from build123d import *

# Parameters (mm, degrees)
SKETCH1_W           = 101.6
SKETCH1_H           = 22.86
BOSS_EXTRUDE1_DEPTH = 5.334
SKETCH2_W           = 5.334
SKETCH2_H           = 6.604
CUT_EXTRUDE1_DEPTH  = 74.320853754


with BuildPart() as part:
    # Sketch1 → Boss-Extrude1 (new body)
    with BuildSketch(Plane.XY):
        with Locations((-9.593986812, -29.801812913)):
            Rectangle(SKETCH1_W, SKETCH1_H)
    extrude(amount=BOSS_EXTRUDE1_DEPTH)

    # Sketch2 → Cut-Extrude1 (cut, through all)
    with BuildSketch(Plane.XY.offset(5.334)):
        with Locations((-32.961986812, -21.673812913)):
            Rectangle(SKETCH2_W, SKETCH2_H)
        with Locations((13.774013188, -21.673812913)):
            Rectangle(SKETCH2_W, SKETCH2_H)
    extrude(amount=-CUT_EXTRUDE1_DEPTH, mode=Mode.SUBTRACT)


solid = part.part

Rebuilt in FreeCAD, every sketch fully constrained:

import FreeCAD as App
import Part
import Sketcher
from FreeCAD import Vector
Q = App.Units.Quantity

doc = App.newDocument("Part")
params = doc.addObject("Spreadsheet::Sheet", "Params")
for row, (alias, value) in enumerate([
    ("sketch1_width", "4 in"),
    ("sketch1_height", "0.9 in"),
    ("pad1_length", "0.21 in"),
    ("sketch2_width", "0.21 in"),
    ("sketch2_height", "0.26 in"),
], start=1):
    params.set(f"A{row}", alias)
    params.set(f"B{row}", "=" + value)
    params.setAlias(f"B{row}", alias)

body = doc.addObject("PartDesign::Body", "Body")

sketch1 = body.newObject("Sketcher::SketchObject", "Sketch")
sketch1.AttachmentSupport = (doc.getObject("XY_Plane"), [""])
sketch1.MapMode = "FlatFace"
sketch1.addGeometry(Part.LineSegment(Vector(-60.393987, -18.371813, 0), Vector(-60.393987, -41.231813, 0)), False)
sketch1.addGeometry(Part.LineSegment(Vector(-60.393987, -41.231813, 0), Vector(41.206013, -41.231813, 0)), False)
sketch1.addGeometry(Part.LineSegment(Vector(41.206013, -41.231813, 0), Vector(41.206013, -18.371813, 0)), False)
sketch1.addGeometry(Part.LineSegment(Vector(41.206013, -18.371813, 0), Vector(-60.393987, -18.371813, 0)), False)
sketch1.addConstraint(Sketcher.Constraint("Coincident", 0, 2, 1, 1))
sketch1.addConstraint(Sketcher.Constraint("Coincident", 1, 2, 2, 1))
sketch1.addConstraint(Sketcher.Constraint("Coincident", 2, 2, 3, 1))
sketch1.addConstraint(Sketcher.Constraint("Coincident", 3, 2, 0, 1))
sketch1.addConstraint(Sketcher.Constraint("Vertical", 0))
sketch1.addConstraint(Sketcher.Constraint("Horizontal", 1))
sketch1.addConstraint(Sketcher.Constraint("Vertical", 2))
sketch1.addConstraint(Sketcher.Constraint("Horizontal", 3))
sketch1.addConstraint(Sketcher.Constraint("DistanceX", 1, 1, 1, 2, Q("4 in")))
sketch1.addConstraint(Sketcher.Constraint("DistanceY", 0, 2, 0, 1, Q("0.9 in")))
sketch1.addConstraint(Sketcher.Constraint("DistanceX", 0, 2, -1, 1, 60.393987))
sketch1.addConstraint(Sketcher.Constraint("DistanceY", 0, 2, -1, 1, 41.231813))
sketch1.setExpression("Constraints[8]", "Params.sketch1_width")
sketch1.setExpression("Constraints[9]", "Params.sketch1_height")
pad1 = body.newObject("PartDesign::Pad", "Pad")
pad1.Profile = sketch1
pad1.setExpression("Length", "Params.pad1_length")

sketch2 = body.newObject("Sketcher::SketchObject", "Sketch001")
sketch2.AttachmentSupport = (doc.getObject("XY_Plane"), [""])
sketch2.MapMode = "FlatFace"
sketch2.AttachmentOffset = App.Placement(Vector(0, 0, 0.21 * 25.4), App.Rotation())
sketch2.addGeometry(Part.LineSegment(Vector(-35.628987, -18.371813, 0), Vector(-35.628987, -24.975813, 0)), False)
sketch2.addGeometry(Part.LineSegment(Vector(-35.628987, -24.975813, 0), Vector(-30.294987, -24.975813, 0)), False)
sketch2.addGeometry(Part.LineSegment(Vector(-30.294987, -24.975813, 0), Vector(-30.294987, -18.371813, 0)), False)
sketch2.addGeometry(Part.LineSegment(Vector(-30.294987, -18.371813, 0), Vector(-35.628987, -18.371813, 0)), False)
sketch2.addGeometry(Part.LineSegment(Vector(11.107013, -18.371813, 0), Vector(11.107013, -24.975813, 0)), False)
sketch2.addGeometry(Part.LineSegment(Vector(11.107013, -24.975813, 0), Vector(16.441013, -24.975813, 0)), False)
sketch2.addGeometry(Part.LineSegment(Vector(16.441013, -24.975813, 0), Vector(16.441013, -18.371813, 0)), False)
sketch2.addGeometry(Part.LineSegment(Vector(16.441013, -18.371813, 0), Vector(11.107013, -18.371813, 0)), False)
sketch2.addConstraint(Sketcher.Constraint("Coincident", 0, 2, 1, 1))
sketch2.addConstraint(Sketcher.Constraint("Coincident", 1, 2, 2, 1))
sketch2.addConstraint(Sketcher.Constraint("Coincident", 2, 2, 3, 1))
sketch2.addConstraint(Sketcher.Constraint("Coincident", 3, 2, 0, 1))
sketch2.addConstraint(Sketcher.Constraint("Coincident", 4, 2, 5, 1))
sketch2.addConstraint(Sketcher.Constraint("Coincident", 5, 2, 6, 1))
sketch2.addConstraint(Sketcher.Constraint("Coincident", 6, 2, 7, 1))
sketch2.addConstraint(Sketcher.Constraint("Coincident", 7, 2, 4, 1))
sketch2.addConstraint(Sketcher.Constraint("Vertical", 0))
sketch2.addConstraint(Sketcher.Constraint("Horizontal", 1))
sketch2.addConstraint(Sketcher.Constraint("Vertical", 2))
sketch2.addConstraint(Sketcher.Constraint("Horizontal", 3))
sketch2.addConstraint(Sketcher.Constraint("Vertical", 4))
sketch2.addConstraint(Sketcher.Constraint("Horizontal", 5))
sketch2.addConstraint(Sketcher.Constraint("Vertical", 6))
sketch2.addConstraint(Sketcher.Constraint("Horizontal", 7))
sketch2.addConstraint(Sketcher.Constraint("Horizontal", 1, 2, 4, 2))
sketch2.addConstraint(Sketcher.Constraint("Horizontal", 3, 2, 6, 2))
sketch2.addConstraint(Sketcher.Constraint("Equal", 3, 5))
sketch2.addConstraint(Sketcher.Constraint("DistanceX", 1, 1, 1, 2, Q("0.21 in")))
sketch2.addConstraint(Sketcher.Constraint("DistanceY", 0, 2, 0, 1, Q("0.26 in")))
sketch2.addConstraint(Sketcher.Constraint("DistanceX", 1, 2, 4, 2, Q("1.63 in")))
sketch2.addConstraint(Sketcher.Constraint("DistanceX", 0, 2, -1, 1, 35.628987))
sketch2.addConstraint(Sketcher.Constraint("DistanceY", 0, 2, -1, 1, 24.975813))
sketch2.setExpression("Constraints[19]", "Params.sketch2_width")
sketch2.setExpression("Constraints[20]", "Params.sketch2_height")
pocket1 = body.newObject("PartDesign::Pocket", "Pocket")
pocket1.Profile = sketch2
pocket1.Type = "ThroughAll"

doc.recompute()
